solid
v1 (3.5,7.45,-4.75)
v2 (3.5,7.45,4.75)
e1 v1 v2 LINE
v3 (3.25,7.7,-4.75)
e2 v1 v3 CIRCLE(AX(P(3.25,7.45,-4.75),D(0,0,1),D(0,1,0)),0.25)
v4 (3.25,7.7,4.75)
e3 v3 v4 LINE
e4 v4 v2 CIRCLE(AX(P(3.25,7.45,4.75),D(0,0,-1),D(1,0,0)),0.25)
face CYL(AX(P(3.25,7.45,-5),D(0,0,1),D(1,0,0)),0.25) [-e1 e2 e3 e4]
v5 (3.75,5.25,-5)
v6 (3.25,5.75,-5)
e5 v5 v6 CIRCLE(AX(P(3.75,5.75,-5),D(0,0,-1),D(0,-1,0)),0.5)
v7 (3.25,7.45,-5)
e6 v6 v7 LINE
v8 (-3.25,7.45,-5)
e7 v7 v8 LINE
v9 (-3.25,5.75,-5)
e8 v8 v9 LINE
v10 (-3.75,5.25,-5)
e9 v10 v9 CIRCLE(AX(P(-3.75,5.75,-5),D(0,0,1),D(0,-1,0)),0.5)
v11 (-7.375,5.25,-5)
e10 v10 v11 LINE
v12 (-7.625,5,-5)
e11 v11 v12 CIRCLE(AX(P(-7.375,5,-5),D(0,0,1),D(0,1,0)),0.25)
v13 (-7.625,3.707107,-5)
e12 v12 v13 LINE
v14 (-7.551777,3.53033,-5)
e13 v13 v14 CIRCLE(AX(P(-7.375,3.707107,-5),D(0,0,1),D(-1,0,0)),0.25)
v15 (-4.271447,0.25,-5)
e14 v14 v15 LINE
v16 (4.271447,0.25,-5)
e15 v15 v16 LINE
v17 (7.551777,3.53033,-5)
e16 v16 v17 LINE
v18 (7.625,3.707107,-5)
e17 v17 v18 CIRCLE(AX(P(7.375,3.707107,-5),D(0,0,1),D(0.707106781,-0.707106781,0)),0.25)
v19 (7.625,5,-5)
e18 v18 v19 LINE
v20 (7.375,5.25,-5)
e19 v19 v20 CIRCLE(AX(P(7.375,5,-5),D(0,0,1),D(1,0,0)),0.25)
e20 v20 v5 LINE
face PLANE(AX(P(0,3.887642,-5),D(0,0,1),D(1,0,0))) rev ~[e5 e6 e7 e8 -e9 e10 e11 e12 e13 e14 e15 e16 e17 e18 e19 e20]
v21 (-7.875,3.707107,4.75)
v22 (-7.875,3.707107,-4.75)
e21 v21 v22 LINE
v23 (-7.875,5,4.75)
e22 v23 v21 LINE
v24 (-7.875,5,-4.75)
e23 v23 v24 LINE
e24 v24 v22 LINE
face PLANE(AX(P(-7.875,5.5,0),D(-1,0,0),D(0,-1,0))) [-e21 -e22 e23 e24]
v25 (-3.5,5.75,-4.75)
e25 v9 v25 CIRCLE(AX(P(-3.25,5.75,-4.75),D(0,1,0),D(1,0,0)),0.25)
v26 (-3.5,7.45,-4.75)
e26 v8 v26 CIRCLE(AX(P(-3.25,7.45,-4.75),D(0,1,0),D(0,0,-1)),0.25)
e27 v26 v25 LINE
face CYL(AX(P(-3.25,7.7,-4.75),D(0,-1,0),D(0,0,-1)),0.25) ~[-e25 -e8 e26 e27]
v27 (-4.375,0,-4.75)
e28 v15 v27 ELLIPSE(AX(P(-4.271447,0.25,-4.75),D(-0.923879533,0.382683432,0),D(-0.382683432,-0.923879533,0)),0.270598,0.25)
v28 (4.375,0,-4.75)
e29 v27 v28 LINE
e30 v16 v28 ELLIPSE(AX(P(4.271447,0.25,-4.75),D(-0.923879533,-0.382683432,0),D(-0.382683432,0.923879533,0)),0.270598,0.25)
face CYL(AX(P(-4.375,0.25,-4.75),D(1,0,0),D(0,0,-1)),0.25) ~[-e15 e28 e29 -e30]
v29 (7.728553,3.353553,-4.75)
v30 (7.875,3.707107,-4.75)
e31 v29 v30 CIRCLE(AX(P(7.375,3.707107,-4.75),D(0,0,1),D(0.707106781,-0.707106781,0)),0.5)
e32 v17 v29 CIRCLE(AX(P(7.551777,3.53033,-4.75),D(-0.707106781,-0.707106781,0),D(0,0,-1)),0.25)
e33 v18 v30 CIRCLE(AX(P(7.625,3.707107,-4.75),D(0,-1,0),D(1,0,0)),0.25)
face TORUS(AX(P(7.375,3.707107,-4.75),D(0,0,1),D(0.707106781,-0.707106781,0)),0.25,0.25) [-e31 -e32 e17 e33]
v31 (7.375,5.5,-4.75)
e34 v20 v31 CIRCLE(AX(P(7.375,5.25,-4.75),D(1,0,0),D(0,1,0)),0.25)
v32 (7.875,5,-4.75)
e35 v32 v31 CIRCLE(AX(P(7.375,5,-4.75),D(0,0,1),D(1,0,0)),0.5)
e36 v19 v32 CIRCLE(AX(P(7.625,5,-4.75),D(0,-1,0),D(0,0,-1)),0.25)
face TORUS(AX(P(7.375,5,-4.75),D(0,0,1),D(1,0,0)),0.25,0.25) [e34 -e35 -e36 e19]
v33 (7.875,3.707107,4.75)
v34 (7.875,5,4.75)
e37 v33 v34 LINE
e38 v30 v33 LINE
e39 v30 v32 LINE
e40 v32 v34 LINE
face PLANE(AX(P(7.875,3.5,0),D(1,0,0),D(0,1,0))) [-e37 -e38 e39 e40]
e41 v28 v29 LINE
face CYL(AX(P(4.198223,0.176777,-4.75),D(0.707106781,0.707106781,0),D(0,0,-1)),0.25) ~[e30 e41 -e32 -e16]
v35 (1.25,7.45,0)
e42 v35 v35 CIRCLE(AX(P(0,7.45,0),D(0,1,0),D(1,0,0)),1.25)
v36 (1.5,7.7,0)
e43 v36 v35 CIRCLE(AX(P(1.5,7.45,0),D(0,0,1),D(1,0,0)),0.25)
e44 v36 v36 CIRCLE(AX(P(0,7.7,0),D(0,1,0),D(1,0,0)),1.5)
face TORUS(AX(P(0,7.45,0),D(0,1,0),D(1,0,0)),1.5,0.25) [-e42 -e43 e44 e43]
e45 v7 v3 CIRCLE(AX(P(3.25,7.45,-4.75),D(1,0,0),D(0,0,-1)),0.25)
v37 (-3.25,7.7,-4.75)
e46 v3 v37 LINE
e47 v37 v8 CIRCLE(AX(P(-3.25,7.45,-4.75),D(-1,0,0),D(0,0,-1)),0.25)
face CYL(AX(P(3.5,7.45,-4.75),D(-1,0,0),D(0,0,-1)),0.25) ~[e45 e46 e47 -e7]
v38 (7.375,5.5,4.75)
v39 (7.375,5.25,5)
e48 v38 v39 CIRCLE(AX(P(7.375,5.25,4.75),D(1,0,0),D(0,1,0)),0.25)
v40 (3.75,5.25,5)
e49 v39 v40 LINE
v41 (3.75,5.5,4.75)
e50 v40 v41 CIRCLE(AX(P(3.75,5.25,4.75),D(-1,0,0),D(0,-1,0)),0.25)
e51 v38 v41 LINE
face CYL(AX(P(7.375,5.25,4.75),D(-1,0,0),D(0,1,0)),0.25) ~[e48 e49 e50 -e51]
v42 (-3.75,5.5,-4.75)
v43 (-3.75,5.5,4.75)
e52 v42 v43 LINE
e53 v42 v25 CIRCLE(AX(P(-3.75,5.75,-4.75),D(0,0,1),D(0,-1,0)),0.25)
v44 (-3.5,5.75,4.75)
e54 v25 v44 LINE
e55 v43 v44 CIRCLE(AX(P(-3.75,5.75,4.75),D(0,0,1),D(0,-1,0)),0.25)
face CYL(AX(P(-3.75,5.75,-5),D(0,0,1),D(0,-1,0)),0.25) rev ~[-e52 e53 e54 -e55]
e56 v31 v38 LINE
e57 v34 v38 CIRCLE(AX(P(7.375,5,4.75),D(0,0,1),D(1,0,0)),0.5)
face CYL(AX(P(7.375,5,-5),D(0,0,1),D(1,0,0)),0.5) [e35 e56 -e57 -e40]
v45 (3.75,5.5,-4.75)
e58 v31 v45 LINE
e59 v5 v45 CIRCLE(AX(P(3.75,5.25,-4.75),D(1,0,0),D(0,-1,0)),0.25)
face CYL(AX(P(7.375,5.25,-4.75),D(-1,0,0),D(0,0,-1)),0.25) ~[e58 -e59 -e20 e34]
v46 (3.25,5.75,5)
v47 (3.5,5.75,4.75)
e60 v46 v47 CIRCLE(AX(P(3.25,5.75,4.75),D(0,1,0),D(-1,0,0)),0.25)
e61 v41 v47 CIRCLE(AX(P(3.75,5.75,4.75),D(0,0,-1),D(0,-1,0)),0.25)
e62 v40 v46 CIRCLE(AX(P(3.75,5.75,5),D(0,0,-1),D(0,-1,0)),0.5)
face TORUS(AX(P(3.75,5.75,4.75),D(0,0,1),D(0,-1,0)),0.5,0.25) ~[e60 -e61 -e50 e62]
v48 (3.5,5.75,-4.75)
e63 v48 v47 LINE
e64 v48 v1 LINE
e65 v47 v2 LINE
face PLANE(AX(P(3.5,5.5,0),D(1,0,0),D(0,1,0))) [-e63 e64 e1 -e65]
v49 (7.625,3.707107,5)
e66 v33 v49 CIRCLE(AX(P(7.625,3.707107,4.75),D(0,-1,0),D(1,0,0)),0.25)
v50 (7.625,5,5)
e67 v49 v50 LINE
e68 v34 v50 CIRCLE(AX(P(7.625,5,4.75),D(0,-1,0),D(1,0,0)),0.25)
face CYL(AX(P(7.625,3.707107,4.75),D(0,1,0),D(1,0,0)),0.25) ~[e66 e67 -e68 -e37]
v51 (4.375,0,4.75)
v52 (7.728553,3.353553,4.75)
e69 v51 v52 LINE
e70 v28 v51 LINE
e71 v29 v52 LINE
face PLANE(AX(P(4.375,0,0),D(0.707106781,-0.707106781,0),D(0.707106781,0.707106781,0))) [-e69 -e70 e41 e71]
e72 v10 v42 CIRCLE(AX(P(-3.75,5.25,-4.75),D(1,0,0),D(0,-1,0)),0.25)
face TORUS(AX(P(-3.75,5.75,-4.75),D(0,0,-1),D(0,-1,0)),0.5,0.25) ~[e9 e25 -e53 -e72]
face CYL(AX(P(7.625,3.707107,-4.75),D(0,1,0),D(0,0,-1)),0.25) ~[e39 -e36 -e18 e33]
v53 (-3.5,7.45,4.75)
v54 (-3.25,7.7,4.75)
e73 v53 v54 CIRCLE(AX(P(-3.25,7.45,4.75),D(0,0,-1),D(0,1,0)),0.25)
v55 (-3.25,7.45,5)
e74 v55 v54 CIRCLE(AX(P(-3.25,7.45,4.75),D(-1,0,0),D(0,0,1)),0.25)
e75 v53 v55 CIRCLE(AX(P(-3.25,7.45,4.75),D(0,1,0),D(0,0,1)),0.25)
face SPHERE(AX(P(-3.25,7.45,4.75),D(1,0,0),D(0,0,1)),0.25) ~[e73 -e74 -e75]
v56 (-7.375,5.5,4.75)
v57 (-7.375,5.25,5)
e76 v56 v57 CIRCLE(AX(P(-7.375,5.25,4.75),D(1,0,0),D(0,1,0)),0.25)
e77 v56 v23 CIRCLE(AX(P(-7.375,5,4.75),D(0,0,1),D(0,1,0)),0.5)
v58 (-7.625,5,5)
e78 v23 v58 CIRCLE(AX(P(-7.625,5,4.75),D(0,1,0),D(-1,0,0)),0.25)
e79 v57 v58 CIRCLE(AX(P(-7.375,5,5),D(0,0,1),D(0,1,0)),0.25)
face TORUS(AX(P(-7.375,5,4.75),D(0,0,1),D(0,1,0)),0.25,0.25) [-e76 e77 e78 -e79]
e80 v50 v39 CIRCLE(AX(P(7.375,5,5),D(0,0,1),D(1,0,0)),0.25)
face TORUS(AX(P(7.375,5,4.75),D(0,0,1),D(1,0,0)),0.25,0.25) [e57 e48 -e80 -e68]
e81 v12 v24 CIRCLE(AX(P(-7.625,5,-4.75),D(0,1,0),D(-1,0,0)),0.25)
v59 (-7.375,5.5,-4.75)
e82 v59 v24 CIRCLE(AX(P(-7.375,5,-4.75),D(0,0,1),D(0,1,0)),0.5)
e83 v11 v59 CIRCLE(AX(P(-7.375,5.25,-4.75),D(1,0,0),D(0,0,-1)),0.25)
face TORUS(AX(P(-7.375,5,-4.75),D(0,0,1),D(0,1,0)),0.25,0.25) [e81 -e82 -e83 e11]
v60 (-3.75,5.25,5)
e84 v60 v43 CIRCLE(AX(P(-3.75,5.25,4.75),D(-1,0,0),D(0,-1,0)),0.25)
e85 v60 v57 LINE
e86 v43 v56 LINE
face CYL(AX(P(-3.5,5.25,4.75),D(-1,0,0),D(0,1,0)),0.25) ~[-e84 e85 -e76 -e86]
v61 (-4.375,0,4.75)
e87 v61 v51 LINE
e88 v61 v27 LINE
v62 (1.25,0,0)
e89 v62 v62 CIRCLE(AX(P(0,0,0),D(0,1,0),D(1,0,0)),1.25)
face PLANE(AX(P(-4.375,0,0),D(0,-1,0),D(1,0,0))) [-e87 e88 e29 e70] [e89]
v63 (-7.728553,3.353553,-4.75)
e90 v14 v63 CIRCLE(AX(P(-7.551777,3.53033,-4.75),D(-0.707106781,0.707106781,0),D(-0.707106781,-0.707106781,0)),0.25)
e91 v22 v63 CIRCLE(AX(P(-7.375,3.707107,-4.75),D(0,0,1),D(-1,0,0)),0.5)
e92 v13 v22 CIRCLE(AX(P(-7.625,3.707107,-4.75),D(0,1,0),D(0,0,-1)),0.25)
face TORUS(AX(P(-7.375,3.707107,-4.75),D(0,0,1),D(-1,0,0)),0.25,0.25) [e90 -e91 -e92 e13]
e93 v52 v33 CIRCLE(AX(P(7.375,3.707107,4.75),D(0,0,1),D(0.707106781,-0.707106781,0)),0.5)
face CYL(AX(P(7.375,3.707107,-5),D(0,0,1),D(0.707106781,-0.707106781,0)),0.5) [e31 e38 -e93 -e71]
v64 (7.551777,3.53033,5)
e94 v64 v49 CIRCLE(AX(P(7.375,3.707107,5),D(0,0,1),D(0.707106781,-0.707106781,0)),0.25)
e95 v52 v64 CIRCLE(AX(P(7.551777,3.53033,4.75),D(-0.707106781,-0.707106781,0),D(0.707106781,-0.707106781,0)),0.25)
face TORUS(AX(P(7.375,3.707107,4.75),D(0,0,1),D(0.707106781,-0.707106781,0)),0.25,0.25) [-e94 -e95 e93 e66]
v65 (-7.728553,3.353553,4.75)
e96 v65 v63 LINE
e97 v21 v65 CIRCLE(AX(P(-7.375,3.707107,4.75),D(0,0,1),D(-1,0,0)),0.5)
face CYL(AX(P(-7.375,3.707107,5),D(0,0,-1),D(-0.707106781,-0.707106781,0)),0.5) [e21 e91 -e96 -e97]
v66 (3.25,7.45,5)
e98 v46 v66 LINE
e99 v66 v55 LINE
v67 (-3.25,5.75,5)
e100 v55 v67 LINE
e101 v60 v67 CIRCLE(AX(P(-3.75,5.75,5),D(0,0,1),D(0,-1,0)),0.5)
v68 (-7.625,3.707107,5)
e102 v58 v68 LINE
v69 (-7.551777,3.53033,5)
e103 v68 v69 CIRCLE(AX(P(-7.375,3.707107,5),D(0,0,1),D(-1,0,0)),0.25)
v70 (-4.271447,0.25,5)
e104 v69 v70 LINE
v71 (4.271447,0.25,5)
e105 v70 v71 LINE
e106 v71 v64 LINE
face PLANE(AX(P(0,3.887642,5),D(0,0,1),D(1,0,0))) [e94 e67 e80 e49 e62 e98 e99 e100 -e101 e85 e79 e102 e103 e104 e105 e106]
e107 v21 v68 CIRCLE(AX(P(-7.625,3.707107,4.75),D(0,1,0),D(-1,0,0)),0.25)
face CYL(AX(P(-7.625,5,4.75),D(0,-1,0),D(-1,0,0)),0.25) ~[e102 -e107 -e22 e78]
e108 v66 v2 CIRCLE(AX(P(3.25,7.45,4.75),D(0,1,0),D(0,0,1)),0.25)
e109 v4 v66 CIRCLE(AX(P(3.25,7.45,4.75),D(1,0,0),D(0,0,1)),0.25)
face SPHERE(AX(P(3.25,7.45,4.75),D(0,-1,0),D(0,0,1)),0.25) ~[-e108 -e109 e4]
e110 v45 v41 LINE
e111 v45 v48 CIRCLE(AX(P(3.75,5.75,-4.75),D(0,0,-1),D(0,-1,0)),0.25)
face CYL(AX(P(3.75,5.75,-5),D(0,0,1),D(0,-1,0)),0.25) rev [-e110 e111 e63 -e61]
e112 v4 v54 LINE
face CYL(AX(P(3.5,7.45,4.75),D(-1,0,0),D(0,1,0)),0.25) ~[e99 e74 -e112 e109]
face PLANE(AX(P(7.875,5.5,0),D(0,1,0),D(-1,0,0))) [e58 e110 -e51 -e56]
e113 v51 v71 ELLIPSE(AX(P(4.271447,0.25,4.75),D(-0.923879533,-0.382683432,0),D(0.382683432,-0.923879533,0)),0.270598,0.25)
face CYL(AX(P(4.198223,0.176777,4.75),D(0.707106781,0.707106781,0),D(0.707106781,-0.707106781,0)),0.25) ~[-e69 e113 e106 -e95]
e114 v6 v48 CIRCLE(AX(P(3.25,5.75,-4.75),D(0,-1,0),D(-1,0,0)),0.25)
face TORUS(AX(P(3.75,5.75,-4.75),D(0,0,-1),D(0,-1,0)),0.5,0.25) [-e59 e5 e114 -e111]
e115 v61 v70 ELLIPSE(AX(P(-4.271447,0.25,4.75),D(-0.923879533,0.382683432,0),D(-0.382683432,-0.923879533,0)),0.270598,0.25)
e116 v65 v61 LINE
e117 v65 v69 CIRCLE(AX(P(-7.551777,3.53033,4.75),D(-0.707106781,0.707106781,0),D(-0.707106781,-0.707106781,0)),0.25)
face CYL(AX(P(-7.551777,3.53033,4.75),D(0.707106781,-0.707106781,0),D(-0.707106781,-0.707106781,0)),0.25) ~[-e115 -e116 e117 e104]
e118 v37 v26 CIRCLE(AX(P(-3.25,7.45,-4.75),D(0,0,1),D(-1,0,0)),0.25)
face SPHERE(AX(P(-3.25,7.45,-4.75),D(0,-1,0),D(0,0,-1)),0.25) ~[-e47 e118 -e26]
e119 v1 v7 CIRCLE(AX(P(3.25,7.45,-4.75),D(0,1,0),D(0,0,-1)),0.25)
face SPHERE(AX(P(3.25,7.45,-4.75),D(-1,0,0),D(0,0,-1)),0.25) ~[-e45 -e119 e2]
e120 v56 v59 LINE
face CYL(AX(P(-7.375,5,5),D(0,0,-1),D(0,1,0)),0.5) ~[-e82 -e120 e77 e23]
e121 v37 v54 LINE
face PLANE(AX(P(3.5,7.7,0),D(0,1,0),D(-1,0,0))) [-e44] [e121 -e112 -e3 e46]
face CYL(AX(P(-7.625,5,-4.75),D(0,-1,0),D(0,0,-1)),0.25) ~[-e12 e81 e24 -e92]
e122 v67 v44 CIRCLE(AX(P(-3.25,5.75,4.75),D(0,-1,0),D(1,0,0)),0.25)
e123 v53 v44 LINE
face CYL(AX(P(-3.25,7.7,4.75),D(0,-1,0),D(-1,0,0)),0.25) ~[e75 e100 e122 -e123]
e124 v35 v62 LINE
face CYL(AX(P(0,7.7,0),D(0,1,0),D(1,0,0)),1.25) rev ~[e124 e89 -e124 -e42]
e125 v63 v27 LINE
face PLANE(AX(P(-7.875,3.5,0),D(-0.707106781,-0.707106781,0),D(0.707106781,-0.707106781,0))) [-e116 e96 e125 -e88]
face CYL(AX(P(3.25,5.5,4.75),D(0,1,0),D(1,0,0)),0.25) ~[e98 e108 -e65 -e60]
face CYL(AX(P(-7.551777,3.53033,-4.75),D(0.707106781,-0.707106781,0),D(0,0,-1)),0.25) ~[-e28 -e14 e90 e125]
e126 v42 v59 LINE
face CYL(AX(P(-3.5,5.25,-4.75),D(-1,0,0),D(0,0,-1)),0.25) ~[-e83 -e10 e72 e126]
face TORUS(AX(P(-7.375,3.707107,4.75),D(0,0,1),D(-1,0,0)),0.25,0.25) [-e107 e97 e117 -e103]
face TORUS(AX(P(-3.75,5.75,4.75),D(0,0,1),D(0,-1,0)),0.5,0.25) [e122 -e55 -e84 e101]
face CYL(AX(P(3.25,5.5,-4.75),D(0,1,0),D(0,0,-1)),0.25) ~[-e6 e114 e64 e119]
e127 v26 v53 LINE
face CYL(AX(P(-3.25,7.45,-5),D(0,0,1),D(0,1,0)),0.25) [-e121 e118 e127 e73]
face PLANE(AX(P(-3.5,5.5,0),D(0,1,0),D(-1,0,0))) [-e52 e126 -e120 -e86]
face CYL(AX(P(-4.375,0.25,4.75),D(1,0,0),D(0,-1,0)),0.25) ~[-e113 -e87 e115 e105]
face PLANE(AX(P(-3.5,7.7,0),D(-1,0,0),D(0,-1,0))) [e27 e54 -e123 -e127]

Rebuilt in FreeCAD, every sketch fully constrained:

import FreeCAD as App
import Part
import Sketcher
from FreeCAD import Vector


def edges_at(feature, points):
    """Names of the edges that pass closest to the given points."""
    edges = feature.Shape.Edges
    near = lambda p: min(range(len(edges)), key=lambda i: edges[i].distToShape(Part.Vertex(*p))[0])
    return sorted({f"Edge{near(p) + 1}" for p in points})


def add_polygon(sketch, points):
    """Adds a closed chain of lines whose ends are joined by coincident constraints."""
    first, n = sketch.GeometryCount, len(points)
    for a, b in zip(points, points[1:] + points[:1]):
        sketch.addGeometry(Part.LineSegment(App.Vector(*a, 0), App.Vector(*b, 0)), False)
    for i in range(n):
        sketch.addConstraint(Sketcher.Constraint("Coincident", first + i, 2, first + (i + 1) % n, 1))

doc = App.newDocument("Part")
body = doc.addObject("PartDesign::Body", "Body")

# Sketch on XY plane
sketch1 = doc.addObject("Sketcher::SketchObject", "Sketch")
body.addObject(sketch1)
sketch1.AttachmentSupport = (doc.XY_Plane, [""])
sketch1.MapMode = "FlatFace"
add_polygon(sketch1, [(-4.4, 0), (4.4, 0), (7.9, 3.5), (7.9, 5.5), (3.5, 5.5), (3.5, 7.7), (-3.5, 7.7), (-3.5, 5.5), (-7.9, 5.5), (-7.9, 3.5)])  # lines 0-9
sketch1.addConstraint([
    Sketcher.Constraint("Horizontal", 0),
    Sketcher.Constraint("Vertical", 2),
    Sketcher.Constraint("Horizontal", 3),
    Sketcher.Constraint("Vertical", 4),
    Sketcher.Constraint("Horizontal", 5),
    Sketcher.Constraint("Vertical", 6),
    Sketcher.Constraint("Horizontal", 7),
    Sketcher.Constraint("Vertical", 8),
    Sketcher.Constraint("Symmetric", 0, 2, 9, 2, -1, 1),
    Sketcher.Constraint("Symmetric", 3, 2, 6, 2, -2),
    Sketcher.Constraint("Symmetric", 1, 2, 8, 2, -2),
    Sketcher.Constraint("Perpendicular", 1, 9),
    Sketcher.Constraint("DistanceX", 5, 2, 5, 1, 7.0),
    Sketcher.Constraint("DistanceY", 2, 1, 2, 2, 2.0),
    Sketcher.Constraint("DistanceY", 4, 1, 4, 2, 2.2),
    Sketcher.Constraint("DistanceX", 0, 1, 0, 2, 8.75),
    Sketcher.Constraint("DistanceY", -1, 1, 1, 2, 3.5),
])
pad1 = doc.addObject("PartDesign::Pad", "Pad")
body.addObject(pad1)
pad1.Profile = sketch1
pad1.Length = 10
pad1.Midplane = True

# Sketch on XZ plane
sketch2 = doc.addObject("Sketcher::SketchObject", "Sketch001")
body.addObject(sketch2)
sketch2.AttachmentSupport = (doc.XZ_Plane, [""])
sketch2.MapMode = "FlatFace"
sketch2.AttachmentOffset = App.Placement(Vector(0, 0, -7.7), App.Rotation())
sketch2.addGeometry(Part.Circle(Vector(0, 0, 0), Vector(0, 0, 1), 1.2), False)
sketch2.addConstraint([
    Sketcher.Constraint("Coincident", 0, 3, -1, 1),
    Sketcher.Constraint("Diameter", 0, 2.5),
])
pocket1 = doc.addObject("PartDesign::Pocket", "Pocket")
body.addObject(pocket1)
pocket1.Profile = sketch2
pocket1.Type = "ThroughAll"
pocket1.Reversed = True
doc.recompute()

fillet = doc.addObject("PartDesign::Fillet", "Fillet")
body.addObject(fillet)
fillet.Base = (pocket1, edges_at(pocket1, [
    (7.875, 3.5, 0),
    (-7.875, 3.5, 0),
    (-7.875, 5.5, 0),
    (7.875, 5.5, 0),
]))
fillet.Radius = 0.5
doc.recompute()

fillet2 = doc.addObject("PartDesign::Fillet", "Fillet001")
body.addObject(fillet2)
fillet2.Base = (fillet, edges_at(fillet, [
    (3.5, 6.6, 5),
    (-5.438, 5.5, -5),
    (-3.5, 6.6, -5),
    (0, 7.7, -5),
    (3.5, 6.6, -5),
    (0, 7.7, 5),
    (-3.5, 6.6, 5),
    (-3.5, 5.5, 0),
    (-3.5, 7.7, 0),
    (3.5, 7.7, 0),
    (3.5, 5.5, 0),
    (-5.438, 5.5, 5),
    (0, 0, 5),
    (-1.25, 7.7, 0),
    (6.052, 1.677, 5),
    (7.875, 4.354, -5),
    (7.875, 4.354, 5),
    (-6.052, 1.677, -5),
    (-7.875, 4.354, -5),
    (5.438, 5.5, -5),
    (-7.729, 5.354, -5),
    (-7.837, 3.516, -5),
    (7.729, 5.354, -5),
    (7.837, 3.516, -5),
    (5.438, 5.5, 5),
    (-7.875, 4.354, 5),
    (-6.052, 1.677, 5),
    (-7.729, 5.354, 5),
    (-7.837, 3.516, 5),
    (7.729, 5.354, 5),
    (7.837, 3.516, 5),
    (6.052, 1.677, -5),
    (0, 0, -5),
]))
fillet2.Radius = 0.25

doc.recompute()
